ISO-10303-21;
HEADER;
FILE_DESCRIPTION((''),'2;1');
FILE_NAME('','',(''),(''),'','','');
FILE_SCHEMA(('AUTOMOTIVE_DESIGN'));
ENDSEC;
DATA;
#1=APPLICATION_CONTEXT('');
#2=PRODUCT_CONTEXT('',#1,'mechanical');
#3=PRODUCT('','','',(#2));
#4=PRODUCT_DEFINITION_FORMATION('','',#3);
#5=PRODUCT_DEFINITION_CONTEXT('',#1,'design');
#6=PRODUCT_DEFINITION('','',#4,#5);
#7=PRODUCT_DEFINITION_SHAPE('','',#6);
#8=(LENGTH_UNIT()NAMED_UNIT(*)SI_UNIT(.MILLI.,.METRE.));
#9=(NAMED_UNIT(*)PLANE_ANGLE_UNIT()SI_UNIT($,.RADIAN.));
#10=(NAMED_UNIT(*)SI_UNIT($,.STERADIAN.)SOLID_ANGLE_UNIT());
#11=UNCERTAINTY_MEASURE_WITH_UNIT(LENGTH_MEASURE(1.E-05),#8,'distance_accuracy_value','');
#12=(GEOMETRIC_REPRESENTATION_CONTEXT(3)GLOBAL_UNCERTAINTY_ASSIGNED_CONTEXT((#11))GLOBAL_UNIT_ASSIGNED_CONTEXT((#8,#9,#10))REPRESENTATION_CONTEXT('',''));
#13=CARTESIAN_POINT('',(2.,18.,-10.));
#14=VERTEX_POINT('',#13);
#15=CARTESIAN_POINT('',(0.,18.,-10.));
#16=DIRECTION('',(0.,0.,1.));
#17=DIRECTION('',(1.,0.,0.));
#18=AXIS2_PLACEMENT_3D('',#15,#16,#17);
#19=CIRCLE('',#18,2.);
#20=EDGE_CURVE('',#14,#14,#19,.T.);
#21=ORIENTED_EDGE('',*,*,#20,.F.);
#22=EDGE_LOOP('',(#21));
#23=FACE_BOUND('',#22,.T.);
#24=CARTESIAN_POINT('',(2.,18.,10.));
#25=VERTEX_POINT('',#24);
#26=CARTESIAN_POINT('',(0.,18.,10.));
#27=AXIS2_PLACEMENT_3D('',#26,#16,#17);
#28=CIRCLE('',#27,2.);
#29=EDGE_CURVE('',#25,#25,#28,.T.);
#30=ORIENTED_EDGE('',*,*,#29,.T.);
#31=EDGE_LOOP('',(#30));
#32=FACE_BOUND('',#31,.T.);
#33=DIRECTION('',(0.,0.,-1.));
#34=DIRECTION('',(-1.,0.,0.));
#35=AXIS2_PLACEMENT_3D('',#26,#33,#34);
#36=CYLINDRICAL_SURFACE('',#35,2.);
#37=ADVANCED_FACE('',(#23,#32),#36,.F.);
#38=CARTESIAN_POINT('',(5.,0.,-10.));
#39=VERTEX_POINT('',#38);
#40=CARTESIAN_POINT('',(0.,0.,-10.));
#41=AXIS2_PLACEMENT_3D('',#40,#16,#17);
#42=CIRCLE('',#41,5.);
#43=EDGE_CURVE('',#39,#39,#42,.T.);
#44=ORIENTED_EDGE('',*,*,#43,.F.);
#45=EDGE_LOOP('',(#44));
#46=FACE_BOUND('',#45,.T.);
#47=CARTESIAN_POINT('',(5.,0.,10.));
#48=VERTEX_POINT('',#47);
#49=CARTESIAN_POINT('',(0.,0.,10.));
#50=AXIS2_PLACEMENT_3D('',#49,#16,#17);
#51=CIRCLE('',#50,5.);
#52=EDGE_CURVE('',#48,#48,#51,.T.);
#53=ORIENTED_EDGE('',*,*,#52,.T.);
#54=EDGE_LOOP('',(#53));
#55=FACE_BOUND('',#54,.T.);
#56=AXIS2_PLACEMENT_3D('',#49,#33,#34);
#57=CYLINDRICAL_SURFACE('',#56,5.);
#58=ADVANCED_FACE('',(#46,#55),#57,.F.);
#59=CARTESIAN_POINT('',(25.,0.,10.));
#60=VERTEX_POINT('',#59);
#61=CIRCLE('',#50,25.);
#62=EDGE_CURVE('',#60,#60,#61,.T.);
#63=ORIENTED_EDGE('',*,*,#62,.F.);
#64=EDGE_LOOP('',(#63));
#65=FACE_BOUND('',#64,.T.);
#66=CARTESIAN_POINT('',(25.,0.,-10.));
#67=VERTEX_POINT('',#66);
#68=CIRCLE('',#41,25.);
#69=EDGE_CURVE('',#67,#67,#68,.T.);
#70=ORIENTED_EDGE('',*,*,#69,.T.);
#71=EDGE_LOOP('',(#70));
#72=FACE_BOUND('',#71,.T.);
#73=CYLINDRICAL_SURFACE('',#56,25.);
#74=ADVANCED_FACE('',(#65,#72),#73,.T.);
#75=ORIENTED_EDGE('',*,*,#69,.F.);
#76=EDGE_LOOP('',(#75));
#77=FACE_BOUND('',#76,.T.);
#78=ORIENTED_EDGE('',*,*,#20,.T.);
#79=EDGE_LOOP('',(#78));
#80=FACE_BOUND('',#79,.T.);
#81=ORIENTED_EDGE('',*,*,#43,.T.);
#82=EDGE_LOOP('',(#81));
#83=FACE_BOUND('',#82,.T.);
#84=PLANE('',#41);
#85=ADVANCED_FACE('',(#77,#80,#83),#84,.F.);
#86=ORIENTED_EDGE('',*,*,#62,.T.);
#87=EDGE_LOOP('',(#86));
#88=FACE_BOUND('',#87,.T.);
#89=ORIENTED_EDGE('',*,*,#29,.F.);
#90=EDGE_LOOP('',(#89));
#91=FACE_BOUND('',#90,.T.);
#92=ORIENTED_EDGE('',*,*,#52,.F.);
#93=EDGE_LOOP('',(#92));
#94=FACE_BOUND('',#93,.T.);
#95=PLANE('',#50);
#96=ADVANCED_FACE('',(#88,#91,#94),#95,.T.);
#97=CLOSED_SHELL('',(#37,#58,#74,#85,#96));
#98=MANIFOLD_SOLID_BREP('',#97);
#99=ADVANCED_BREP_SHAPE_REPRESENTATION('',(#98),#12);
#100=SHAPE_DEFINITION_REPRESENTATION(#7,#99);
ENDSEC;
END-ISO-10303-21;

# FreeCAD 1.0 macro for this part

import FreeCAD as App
import Part
import Sketcher
Q = App.Units.Quantity

doc = App.newDocument("Part")
body = doc.addObject("PartDesign::Body", "Body")

sketch1 = body.newObject("Sketcher::SketchObject", "Sketch")
sketch1.AttachmentSupport = (doc.getObject("XY_Plane"), [""])
sketch1.MapMode = "FlatFace"
sketch1.addGeometry([
    Part.Circle(App.Vector(0, 0, 0), App.Vector(0, 0, 1), 25),
    Part.Circle(App.Vector(0, 0, 0), App.Vector(0, 0, 1), 5),
    Part.Circle(App.Vector(0, 18, 0), App.Vector(0, 0, 1), 2),
], False)
sketch1.addConstraint([
    Sketcher.Constraint("Coincident", 0, 3, -1, 1),
    Sketcher.Constraint("Coincident", 1, 3, -1, 1),
    Sketcher.Constraint("PointOnObject", 2, 3, -2),
    Sketcher.Constraint("Diameter", 0, Q("50 mm")),
    Sketcher.Constraint("Diameter", 1, Q("10 mm")),
    Sketcher.Constraint("Diameter", 2, Q("4 mm")),
    Sketcher.Constraint("DistanceY", -1, 1, 2, 3, Q("18 mm")),
])
pad1 = body.newObject("PartDesign::Pad", "Pad")
pad1.Profile = sketch1
pad1.Length = 20
pad1.Midplane = True

doc.recompute()
